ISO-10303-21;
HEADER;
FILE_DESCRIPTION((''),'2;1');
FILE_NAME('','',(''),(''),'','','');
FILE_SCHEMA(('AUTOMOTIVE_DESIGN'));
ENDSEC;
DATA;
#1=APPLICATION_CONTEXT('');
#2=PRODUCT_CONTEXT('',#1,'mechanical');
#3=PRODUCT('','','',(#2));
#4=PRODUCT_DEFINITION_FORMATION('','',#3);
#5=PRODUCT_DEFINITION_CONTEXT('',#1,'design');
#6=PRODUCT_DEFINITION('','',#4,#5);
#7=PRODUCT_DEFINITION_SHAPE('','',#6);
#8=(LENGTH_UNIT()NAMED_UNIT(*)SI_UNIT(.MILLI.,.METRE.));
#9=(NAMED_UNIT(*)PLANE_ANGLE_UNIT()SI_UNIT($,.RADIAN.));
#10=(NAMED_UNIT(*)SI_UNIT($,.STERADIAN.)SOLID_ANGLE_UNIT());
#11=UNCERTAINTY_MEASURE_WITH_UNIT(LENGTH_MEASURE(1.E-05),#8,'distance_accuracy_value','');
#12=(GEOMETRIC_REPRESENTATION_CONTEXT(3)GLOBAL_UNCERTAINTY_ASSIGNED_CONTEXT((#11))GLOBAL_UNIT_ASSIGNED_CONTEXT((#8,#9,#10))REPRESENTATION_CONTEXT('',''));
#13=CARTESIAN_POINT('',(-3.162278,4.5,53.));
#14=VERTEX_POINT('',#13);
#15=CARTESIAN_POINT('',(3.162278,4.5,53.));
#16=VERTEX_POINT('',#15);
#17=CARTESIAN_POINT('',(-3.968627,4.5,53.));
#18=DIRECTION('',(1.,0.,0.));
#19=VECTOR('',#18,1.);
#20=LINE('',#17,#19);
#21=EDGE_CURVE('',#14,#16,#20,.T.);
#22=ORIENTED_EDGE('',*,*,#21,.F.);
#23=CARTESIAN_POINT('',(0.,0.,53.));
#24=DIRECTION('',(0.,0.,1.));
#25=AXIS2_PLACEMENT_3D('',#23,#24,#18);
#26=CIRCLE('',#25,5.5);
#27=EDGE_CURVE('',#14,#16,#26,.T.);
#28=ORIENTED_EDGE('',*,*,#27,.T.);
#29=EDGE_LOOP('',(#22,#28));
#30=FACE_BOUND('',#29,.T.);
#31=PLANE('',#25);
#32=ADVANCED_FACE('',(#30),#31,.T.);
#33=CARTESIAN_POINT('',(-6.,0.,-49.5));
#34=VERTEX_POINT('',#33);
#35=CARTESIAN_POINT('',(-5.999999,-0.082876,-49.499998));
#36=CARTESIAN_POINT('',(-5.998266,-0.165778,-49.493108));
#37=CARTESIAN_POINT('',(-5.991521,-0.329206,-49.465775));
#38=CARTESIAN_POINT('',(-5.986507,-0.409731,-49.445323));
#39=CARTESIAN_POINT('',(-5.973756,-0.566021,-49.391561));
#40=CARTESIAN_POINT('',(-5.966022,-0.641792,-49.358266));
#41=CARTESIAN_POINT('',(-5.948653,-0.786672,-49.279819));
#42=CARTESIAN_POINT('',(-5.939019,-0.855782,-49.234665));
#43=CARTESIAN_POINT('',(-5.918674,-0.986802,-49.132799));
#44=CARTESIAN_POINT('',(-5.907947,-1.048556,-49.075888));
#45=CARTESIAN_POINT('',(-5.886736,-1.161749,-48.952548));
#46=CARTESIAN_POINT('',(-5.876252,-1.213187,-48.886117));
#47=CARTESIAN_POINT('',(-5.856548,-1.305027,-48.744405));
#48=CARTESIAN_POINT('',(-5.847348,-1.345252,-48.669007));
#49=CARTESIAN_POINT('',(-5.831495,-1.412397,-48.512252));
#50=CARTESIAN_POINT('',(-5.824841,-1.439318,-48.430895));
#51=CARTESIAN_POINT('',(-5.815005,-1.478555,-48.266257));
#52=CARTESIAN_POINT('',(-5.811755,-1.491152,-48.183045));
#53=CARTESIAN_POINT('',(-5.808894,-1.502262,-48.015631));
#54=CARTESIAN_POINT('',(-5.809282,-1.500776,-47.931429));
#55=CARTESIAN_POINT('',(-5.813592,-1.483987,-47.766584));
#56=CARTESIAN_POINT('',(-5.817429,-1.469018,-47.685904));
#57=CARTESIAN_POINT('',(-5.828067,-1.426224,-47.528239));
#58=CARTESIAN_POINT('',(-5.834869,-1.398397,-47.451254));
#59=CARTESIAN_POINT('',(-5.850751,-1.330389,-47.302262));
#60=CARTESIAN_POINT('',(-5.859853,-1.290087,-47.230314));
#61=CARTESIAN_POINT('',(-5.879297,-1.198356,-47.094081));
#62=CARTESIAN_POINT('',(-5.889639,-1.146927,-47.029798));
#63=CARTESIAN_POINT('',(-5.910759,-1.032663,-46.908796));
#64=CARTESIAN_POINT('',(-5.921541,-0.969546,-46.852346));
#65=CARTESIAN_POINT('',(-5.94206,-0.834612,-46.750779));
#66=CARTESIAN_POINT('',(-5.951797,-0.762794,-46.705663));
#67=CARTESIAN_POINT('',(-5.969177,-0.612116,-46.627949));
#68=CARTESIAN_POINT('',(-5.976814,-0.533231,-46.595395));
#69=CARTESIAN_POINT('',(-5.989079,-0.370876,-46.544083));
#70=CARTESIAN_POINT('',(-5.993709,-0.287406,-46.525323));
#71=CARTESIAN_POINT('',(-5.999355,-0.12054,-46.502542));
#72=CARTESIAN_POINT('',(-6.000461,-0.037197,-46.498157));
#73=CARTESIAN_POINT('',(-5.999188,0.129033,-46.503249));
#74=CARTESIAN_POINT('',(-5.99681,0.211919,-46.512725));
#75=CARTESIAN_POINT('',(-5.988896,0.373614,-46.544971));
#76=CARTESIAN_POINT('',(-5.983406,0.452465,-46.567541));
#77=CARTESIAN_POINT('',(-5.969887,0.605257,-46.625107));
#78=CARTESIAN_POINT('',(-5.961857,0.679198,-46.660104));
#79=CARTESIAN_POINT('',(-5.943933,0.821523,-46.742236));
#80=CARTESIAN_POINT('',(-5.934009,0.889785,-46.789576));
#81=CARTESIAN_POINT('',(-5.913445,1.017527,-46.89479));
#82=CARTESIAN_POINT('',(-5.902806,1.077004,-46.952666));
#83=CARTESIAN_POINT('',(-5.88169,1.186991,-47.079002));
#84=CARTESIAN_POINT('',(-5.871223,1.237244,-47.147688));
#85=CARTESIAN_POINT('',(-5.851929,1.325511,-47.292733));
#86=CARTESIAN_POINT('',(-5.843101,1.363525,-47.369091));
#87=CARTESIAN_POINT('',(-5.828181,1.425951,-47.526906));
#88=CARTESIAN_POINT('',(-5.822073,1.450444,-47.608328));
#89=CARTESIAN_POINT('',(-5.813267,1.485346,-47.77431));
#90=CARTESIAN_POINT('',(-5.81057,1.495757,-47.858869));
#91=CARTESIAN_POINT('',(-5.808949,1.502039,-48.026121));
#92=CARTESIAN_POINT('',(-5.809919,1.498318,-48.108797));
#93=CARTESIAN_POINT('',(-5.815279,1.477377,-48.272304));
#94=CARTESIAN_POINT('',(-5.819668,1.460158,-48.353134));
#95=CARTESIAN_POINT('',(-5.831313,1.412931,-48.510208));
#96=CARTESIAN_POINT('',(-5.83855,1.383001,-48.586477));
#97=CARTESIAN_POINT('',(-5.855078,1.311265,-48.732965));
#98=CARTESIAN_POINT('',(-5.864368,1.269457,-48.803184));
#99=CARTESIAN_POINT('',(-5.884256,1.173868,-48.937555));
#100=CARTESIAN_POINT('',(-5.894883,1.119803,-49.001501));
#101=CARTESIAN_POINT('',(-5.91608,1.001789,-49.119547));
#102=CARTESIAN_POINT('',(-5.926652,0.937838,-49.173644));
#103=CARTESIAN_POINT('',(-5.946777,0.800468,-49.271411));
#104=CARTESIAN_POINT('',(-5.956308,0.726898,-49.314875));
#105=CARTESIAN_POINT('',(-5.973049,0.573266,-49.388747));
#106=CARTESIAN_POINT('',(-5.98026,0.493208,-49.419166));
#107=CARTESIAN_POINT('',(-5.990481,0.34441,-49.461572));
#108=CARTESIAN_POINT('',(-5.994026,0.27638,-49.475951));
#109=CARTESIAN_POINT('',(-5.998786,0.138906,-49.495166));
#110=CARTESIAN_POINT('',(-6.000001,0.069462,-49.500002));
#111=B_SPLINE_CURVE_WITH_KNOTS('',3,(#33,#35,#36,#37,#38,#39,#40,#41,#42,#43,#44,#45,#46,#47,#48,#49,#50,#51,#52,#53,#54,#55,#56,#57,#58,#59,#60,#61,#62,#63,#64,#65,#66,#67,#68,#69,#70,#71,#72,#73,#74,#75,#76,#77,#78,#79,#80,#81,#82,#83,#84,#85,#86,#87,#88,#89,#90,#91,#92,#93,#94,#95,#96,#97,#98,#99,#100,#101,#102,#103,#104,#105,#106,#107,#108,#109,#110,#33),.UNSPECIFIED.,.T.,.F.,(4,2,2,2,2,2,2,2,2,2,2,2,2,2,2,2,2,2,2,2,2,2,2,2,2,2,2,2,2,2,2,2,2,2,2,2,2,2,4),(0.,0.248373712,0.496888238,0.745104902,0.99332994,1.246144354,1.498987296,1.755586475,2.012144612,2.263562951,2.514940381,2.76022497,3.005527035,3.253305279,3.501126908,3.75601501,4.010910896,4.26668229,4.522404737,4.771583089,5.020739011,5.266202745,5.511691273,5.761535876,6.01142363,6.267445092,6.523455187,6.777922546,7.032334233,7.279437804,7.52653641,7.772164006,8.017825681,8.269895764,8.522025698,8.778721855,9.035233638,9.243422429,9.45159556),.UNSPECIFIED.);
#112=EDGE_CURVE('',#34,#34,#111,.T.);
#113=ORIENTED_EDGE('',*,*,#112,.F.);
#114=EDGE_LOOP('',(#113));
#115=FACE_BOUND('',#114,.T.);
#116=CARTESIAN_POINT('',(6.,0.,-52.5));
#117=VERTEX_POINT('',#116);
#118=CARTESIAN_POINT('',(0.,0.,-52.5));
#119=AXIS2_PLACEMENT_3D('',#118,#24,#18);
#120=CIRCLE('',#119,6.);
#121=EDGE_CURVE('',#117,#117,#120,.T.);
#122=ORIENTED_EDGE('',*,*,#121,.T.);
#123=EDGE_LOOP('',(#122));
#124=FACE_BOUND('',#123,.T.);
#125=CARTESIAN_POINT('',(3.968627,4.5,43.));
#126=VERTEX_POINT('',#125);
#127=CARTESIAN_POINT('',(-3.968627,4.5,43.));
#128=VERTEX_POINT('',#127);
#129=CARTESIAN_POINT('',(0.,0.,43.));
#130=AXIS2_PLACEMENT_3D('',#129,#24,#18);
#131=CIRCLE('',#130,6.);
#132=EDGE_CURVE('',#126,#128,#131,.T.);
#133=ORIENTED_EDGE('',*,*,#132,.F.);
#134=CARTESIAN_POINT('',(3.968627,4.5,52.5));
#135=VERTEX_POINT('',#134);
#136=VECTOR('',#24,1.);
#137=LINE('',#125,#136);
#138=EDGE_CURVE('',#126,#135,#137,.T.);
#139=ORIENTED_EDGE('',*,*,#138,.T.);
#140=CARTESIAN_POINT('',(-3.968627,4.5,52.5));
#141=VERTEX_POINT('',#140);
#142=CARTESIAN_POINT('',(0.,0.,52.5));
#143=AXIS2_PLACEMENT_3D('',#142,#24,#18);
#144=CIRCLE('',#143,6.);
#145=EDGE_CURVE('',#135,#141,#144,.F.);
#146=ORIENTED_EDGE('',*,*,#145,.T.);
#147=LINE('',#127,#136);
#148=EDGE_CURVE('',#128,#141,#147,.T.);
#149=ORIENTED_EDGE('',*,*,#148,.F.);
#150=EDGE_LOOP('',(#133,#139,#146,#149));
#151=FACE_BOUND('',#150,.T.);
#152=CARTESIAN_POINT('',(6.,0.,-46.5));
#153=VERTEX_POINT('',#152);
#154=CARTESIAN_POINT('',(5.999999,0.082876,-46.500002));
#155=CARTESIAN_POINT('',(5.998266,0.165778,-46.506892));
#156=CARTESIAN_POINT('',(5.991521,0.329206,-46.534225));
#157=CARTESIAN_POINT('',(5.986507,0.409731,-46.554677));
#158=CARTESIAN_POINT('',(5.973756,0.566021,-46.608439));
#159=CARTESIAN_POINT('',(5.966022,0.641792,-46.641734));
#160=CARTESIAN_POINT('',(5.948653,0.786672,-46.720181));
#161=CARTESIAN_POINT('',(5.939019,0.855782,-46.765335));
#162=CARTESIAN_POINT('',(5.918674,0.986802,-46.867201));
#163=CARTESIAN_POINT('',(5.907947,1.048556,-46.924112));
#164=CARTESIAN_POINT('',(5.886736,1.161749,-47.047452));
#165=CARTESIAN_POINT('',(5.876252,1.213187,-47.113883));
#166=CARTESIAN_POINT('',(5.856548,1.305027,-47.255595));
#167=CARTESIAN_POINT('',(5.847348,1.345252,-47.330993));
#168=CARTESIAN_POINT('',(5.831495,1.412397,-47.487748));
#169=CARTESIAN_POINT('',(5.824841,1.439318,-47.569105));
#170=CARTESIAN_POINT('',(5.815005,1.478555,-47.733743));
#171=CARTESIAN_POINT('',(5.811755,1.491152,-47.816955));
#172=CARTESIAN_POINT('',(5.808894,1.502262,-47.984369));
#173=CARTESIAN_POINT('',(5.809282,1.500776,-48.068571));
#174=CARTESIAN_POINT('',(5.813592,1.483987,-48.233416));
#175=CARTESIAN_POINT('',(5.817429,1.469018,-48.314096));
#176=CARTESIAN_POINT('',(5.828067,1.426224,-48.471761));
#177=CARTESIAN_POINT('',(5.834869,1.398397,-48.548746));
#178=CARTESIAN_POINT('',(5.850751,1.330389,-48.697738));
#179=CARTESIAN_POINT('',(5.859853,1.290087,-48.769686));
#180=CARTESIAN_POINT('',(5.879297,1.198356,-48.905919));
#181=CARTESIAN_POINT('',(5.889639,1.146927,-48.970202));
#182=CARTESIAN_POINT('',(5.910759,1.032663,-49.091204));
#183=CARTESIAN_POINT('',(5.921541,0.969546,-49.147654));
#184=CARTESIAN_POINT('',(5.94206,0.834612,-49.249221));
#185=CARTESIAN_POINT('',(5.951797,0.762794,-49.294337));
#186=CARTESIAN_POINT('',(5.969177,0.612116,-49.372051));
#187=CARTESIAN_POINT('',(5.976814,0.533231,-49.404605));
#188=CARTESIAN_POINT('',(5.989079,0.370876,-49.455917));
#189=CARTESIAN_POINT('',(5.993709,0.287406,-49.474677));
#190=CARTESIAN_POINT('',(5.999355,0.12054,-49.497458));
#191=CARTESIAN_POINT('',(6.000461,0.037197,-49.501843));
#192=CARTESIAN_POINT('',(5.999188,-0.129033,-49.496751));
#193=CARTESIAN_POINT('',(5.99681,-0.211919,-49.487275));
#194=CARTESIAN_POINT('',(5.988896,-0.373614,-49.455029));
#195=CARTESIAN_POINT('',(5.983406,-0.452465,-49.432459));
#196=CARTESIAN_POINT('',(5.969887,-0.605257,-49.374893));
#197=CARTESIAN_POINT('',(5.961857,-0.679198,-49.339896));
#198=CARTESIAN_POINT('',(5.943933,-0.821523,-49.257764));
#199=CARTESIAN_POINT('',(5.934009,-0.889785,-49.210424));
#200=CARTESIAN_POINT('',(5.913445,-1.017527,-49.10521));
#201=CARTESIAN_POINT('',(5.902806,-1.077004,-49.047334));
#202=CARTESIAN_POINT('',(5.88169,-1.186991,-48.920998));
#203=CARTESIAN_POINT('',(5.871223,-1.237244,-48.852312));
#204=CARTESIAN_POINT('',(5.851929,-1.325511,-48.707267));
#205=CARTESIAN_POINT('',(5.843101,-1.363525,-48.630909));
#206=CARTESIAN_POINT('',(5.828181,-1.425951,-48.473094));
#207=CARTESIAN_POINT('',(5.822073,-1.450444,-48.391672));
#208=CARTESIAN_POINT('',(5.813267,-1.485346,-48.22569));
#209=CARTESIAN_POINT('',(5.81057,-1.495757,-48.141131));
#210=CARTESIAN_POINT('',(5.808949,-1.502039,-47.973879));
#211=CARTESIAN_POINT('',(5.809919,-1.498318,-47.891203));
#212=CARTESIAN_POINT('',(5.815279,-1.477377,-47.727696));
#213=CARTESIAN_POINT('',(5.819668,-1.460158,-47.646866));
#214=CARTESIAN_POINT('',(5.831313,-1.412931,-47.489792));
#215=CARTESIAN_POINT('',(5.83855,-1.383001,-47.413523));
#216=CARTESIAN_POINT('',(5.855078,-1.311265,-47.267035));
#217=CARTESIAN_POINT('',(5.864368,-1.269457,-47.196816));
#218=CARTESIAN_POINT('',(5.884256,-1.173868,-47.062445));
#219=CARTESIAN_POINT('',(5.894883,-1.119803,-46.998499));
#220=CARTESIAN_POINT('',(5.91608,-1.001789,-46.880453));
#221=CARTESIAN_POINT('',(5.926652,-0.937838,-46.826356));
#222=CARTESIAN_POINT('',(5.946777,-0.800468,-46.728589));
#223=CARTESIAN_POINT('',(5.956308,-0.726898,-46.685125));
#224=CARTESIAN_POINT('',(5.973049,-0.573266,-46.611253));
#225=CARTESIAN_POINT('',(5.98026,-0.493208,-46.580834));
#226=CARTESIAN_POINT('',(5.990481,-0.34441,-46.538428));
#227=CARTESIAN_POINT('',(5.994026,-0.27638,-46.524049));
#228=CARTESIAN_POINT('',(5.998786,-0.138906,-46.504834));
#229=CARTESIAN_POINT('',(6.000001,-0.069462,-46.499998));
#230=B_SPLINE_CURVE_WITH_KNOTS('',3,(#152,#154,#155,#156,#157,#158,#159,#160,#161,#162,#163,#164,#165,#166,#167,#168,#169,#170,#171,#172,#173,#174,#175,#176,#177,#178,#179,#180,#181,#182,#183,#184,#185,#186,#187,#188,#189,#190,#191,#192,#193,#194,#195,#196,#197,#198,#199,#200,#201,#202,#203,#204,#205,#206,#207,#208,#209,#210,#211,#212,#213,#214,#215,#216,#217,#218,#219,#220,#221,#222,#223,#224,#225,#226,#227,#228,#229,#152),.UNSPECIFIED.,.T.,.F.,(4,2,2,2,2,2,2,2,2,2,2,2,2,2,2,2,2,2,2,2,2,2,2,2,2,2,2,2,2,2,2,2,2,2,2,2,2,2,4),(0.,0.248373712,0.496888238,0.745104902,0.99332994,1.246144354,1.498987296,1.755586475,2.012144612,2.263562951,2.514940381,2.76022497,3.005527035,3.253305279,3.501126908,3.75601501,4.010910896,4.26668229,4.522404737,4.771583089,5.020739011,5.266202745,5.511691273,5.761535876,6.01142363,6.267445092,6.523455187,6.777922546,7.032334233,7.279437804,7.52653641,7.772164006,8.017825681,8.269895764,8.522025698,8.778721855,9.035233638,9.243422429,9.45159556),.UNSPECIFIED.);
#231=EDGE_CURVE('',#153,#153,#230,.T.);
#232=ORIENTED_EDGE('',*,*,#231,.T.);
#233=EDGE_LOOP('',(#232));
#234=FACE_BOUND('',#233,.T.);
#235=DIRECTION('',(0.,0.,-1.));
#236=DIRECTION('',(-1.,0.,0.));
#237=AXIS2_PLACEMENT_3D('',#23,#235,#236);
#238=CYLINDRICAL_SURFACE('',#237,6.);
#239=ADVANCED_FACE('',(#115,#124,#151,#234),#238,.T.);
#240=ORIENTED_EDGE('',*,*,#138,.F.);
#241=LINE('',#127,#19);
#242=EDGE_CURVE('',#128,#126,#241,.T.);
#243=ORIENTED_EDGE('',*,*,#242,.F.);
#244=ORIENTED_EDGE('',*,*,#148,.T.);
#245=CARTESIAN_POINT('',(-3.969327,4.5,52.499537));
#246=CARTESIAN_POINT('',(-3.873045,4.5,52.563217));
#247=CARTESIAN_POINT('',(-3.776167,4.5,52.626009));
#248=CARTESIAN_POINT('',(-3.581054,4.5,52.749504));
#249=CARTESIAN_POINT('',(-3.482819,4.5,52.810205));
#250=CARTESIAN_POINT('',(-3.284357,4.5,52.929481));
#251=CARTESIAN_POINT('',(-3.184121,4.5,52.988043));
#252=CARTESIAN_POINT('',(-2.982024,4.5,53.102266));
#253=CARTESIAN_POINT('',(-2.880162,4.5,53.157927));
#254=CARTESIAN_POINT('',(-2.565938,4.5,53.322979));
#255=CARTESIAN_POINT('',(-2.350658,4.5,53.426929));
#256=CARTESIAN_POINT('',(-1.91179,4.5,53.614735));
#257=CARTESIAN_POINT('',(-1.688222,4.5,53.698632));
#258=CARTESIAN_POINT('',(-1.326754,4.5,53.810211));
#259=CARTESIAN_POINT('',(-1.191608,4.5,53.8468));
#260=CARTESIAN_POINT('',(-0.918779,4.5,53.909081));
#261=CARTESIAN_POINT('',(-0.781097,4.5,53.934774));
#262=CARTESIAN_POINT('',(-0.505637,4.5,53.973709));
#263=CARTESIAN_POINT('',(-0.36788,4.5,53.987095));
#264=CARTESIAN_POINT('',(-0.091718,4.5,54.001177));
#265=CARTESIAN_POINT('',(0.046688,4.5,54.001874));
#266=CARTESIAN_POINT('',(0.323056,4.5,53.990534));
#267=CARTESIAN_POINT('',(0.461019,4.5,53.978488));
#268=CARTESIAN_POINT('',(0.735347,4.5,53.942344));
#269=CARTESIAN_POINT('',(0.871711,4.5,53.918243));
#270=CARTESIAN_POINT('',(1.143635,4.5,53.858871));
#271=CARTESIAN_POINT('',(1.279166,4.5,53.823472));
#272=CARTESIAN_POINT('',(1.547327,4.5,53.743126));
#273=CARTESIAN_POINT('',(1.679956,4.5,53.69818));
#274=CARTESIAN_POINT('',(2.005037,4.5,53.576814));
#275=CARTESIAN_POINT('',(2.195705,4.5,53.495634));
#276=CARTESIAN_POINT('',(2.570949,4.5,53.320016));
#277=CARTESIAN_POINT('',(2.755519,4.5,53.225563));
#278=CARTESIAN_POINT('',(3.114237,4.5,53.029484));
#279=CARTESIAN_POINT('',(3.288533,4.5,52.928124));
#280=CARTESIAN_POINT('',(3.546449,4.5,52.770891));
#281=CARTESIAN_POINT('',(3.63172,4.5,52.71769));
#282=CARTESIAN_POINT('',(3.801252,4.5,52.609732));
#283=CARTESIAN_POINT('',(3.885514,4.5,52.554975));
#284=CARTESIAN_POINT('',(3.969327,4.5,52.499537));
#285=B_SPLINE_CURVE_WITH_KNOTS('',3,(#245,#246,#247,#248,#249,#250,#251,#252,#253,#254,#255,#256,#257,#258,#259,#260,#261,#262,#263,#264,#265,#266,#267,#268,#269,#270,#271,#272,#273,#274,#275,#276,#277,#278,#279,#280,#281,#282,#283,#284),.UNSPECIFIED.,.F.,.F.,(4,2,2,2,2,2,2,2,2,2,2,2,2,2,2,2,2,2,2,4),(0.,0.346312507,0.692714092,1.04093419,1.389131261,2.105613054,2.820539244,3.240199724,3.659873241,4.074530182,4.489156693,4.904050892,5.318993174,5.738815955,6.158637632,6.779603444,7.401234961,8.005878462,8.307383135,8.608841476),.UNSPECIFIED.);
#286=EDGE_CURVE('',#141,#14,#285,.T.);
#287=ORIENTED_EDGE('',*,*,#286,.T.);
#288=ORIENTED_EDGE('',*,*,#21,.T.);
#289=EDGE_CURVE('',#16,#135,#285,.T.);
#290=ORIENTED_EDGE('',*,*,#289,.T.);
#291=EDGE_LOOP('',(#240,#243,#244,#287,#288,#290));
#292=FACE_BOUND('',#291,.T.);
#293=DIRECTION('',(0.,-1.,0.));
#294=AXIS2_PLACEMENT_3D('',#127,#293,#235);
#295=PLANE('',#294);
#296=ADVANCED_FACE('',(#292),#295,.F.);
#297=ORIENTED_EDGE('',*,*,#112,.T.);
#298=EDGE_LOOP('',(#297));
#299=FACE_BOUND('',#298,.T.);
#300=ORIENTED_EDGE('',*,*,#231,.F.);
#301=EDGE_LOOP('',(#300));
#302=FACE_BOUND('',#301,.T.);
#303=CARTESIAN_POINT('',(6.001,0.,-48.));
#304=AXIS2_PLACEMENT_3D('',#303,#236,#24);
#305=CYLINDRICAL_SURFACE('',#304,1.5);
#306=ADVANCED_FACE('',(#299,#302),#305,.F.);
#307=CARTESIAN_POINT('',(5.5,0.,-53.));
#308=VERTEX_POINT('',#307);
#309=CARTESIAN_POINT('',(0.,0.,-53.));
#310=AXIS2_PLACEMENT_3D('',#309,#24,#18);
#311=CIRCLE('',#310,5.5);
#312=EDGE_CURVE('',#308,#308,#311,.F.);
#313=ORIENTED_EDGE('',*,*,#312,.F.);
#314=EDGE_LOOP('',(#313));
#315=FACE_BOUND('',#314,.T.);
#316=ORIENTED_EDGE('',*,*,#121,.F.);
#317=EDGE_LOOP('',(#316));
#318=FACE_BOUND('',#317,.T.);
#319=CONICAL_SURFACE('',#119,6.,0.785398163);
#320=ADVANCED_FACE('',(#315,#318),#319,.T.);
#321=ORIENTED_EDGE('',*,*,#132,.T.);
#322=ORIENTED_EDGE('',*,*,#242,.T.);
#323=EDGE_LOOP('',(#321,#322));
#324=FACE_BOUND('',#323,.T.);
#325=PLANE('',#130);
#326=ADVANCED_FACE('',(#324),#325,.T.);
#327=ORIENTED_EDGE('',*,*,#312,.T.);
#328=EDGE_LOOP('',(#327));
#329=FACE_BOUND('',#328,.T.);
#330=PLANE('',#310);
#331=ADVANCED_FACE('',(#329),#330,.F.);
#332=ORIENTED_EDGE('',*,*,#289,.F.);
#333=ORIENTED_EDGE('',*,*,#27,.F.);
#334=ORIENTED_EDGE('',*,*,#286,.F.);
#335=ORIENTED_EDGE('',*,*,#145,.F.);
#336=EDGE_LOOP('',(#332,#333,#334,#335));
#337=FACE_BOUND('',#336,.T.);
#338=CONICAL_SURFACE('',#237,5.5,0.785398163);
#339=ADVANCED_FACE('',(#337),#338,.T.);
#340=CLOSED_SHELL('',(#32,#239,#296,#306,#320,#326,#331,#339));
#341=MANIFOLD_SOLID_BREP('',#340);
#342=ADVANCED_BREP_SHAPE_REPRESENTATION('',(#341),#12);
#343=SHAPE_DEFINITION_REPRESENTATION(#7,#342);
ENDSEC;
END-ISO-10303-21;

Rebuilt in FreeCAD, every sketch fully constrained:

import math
import FreeCAD as App
import Part
import Sketcher

V = App.Vector
Q = App.Units.Quantity


def edges_at(feature, points):
    """Names of the edges that pass closest to the given points."""
    edges = feature.Shape.Edges
    near = lambda p: min(range(len(edges)), key=lambda i: edges[i].distToShape(Part.Vertex(*p))[0])
    return sorted({f"Edge{near(p) + 1}" for p in points})

doc = App.newDocument("Part")
body = doc.addObject("PartDesign::Body", "Body")

sketch1 = body.newObject("Sketcher::SketchObject", "Sketch")
sketch1.AttachmentSupport = (doc.getObject("XY_Plane"), [""])
sketch1.MapMode = "FlatFace"
sketch1.addGeometry(Part.Circle(V(0, 0, 0), V(0, 0, 1), 6), False)
sketch1.addConstraint([
    Sketcher.Constraint("Coincident", 0, 3, -1, 1),
    Sketcher.Constraint("Diameter", 0, Q("12 mm")),
])
pad1 = body.newObject("PartDesign::Pad", "Pad")
pad1.Profile = sketch1
pad1.Length = 106
pad1.Midplane = True

sketch2 = body.newObject("Sketcher::SketchObject", "Sketch001")
sketch2.AttachmentSupport = (doc.getObject("YZ_Plane"), [""])
sketch2.MapMode = "FlatFace"
sketch2.addGeometry(Part.Circle(V(0, -48, 0), V(0, 0, 1), 1.5), False)
sketch2.addConstraint([
    Sketcher.Constraint("PointOnObject", 0, 3, -2),
    Sketcher.Constraint("Diameter", 0, Q("3 mm")),
    Sketcher.Constraint("DistanceY", 0, 3, -1, 1, Q("48 mm")),
])
pocket1 = body.newObject("PartDesign::Pocket", "Pocket")
pocket1.Profile = sketch2
pocket1.Type = "UpToFirst"

sketch3 = body.newObject("Sketcher::SketchObject", "Sketch002")
sketch3.AttachmentSupport = (doc.getObject("YZ_Plane"), [""])
sketch3.MapMode = "FlatFace"
sketch3.addGeometry(Part.Circle(V(0, -48, 0), V(0, 0, 1), 1.5), False)
sketch3.addConstraint([
    Sketcher.Constraint("PointOnObject", 0, 3, -2),
    Sketcher.Constraint("Diameter", 0, Q("3 mm")),
    Sketcher.Constraint("DistanceY", 0, 3, -1, 1, Q("48 mm")),
])
pocket2 = body.newObject("PartDesign::Pocket", "Pocket001")
pocket2.Profile = sketch3
pocket2.Length = 6
pocket2.Reversed = True
doc.recompute()

chamfer = body.newObject("PartDesign::Chamfer", "Chamfer")
chamfer.Base = (pocket2, edges_at(pocket2, [(-6, 0, -53), (-6, 0, 53)]))
chamfer.Size = 0.5

sketch4 = body.newObject("Sketcher::SketchObject", "Sketch003")
sketch4.AttachmentSupport = (doc.getObject("XY_Plane"), [""])
sketch4.MapMode = "FlatFace"
sketch4.AttachmentOffset = App.Placement(V(0, 0, 53), App.Rotation())
sketch4.addGeometry([
    Part.LineSegment(V(-4, 4, 0), V(4, 4, 0)),
    Part.ArcOfCircle(Part.Circle(V(0, 0, 0), V(0, 0, 1), 6), math.radians(49), math.radians(131)),
], False)
sketch4.addConstraint([
    Sketcher.Constraint("Coincident", 0, 1, 1, 2),
    Sketcher.Constraint("Coincident", 1, 1, 0, 2),
    Sketcher.Constraint("Horizontal", 0),
    Sketcher.Constraint("Coincident", 1, 3, -1, 1),
    Sketcher.Constraint("Radius", 1, Q("6 mm")),
    Sketcher.Constraint("DistanceY", -1, 1, 0, 1, Q("4.5 mm")),
])
pocket3 = body.newObject("PartDesign::Pocket", "Pocket002")
pocket3.Profile = sketch4
pocket3.Length = 10

doc.recompute()
